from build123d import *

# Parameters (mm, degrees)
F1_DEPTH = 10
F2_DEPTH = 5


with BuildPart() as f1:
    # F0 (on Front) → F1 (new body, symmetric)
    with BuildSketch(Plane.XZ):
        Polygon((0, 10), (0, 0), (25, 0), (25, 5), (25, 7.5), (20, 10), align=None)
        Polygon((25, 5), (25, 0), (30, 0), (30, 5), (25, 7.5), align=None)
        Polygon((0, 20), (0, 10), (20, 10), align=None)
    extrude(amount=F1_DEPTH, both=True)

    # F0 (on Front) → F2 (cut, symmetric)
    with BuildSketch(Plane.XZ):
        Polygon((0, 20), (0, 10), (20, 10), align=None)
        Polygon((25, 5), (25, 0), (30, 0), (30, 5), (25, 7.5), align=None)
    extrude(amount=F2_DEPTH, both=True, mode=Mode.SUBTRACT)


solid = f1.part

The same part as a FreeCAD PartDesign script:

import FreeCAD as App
import Part
import Sketcher

V = App.Vector
Q = App.Units.Quantity

doc = App.newDocument("Part")
body = doc.addObject("PartDesign::Body", "Body")

sketch1 = body.newObject("Sketcher::SketchObject", "Sketch")
sketch1.AttachmentSupport = (doc.getObject("XZ_Plane"), [""])
sketch1.MapMode = "FlatFace"
sketch1.addGeometry(Part.LineSegment(V(0, 0, 0), V(30, 0, 0)), False)
sketch1.addGeometry(Part.LineSegment(V(30, 0, 0), V(30, 5, 0)), False)
sketch1.addGeometry(Part.LineSegment(V(30, 5, 0), V(0, 20, 0)), False)
sketch1.addGeometry(Part.LineSegment(V(0, 20, 0), V(0, 0, 0)), False)
sketch1.addConstraint(Sketcher.Constraint("Coincident", 0, 2, 1, 1))
sketch1.addConstraint(Sketcher.Constraint("Coincident", 1, 2, 2, 1))
sketch1.addConstraint(Sketcher.Constraint("Coincident", 2, 2, 3, 1))
sketch1.addConstraint(Sketcher.Constraint("Coincident", 3, 2, 0, 1))
sketch1.addConstraint(Sketcher.Constraint("Horizontal", 0))
sketch1.addConstraint(Sketcher.Constraint("Vertical", 1))
sketch1.addConstraint(Sketcher.Constraint("Vertical", 3))
sketch1.addConstraint(Sketcher.Constraint("Coincident", 3, 2, -1, 1))
sketch1.addConstraint(Sketcher.Constraint("DistanceX", 0, 1, 0, 2, Q("30 mm")))
sketch1.addConstraint(Sketcher.Constraint("DistanceY", 1, 1, 1, 2, Q("5 mm")))
sketch1.addConstraint(Sketcher.Constraint("DistanceY", 3, 2, 3, 1, Q("20 mm")))
pad1 = body.newObject("PartDesign::Pad", "Pad")
pad1.Profile = sketch1
pad1.Length = 20
pad1.Midplane = True

sketch2 = body.newObject("Sketcher::SketchObject", "Sketch001")
sketch2.AttachmentSupport = (doc.getObject("XZ_Plane"), [""])
sketch2.MapMode = "FlatFace"
sketch2.addGeometry(Part.LineSegment(V(0, 20, 0), V(0, 10, 0)), False)
sketch2.addGeometry(Part.LineSegment(V(0, 10, 0), V(20, 10, 0)), False)
sketch2.addGeometry(Part.LineSegment(V(20, 10, 0), V(0, 20, 0)), False)
sketch2.addGeometry(Part.LineSegment(V(25, 0, 0), V(30, 0, 0)), False)
sketch2.addGeometry(Part.LineSegment(V(30, 0, 0), V(30, 5, 0)), False)
sketch2.addGeometry(Part.LineSegment(V(30, 5, 0), V(25, 8, 0)), False)
sketch2.addGeometry(Part.LineSegment(V(25, 8, 0), V(25, 0, 0)), False)
sketch2.addConstraint(Sketcher.Constraint("Coincident", 0, 2, 1, 1))
sketch2.addConstraint(Sketcher.Constraint("Coincident", 1, 2, 2, 1))
sketch2.addConstraint(Sketcher.Constraint("Coincident", 2, 2, 0, 1))
sketch2.addConstraint(Sketcher.Constraint("Coincident", 3, 2, 4, 1))
sketch2.addConstraint(Sketcher.Constraint("Coincident", 4, 2, 5, 1))
sketch2.addConstraint(Sketcher.Constraint("Coincident", 5, 2, 6, 1))
sketch2.addConstraint(Sketcher.Constraint("Coincident", 6, 2, 3, 1))
sketch2.addConstraint(Sketcher.Constraint("Vertical", 0))
sketch2.addConstraint(Sketcher.Constraint("Horizontal", 1))
sketch2.addConstraint(Sketcher.Constraint("Horizontal", 3))
sketch2.addConstraint(Sketcher.Constraint("Vertical", 4))
sketch2.addConstraint(Sketcher.Constraint("Vertical", 6))
sketch2.addConstraint(Sketcher.Constraint("PointOnObject", 0, 2, -2))
sketch2.addConstraint(Sketcher.Constraint("PointOnObject", 3, 2, -1))
sketch2.addConstraint(Sketcher.Constraint("Parallel", 2, 5))
sketch2.addConstraint(Sketcher.Constraint("Equal", 3, 4))
sketch2.addConstraint(Sketcher.Constraint("DistanceX", 1, 1, 1, 2, Q("20 mm")))
sketch2.addConstraint(Sketcher.Constraint("DistanceX", 3, 1, 3, 2, Q("5 mm")))
sketch2.addConstraint(Sketcher.Constraint("DistanceY", 0, 2, 0, 1, Q("10 mm")))
sketch2.addConstraint(Sketcher.Constraint("DistanceY", -1, 1, 0, 2, Q("10 mm")))
sketch2.addConstraint(Sketcher.Constraint("DistanceX", -1, 1, 3, 2, Q("30 mm")))
pocket1 = body.newObject("PartDesign::Pocket", "Pocket")
pocket1.Profile = sketch2
pocket1.Length = 10
pocket1.Midplane = True

doc.recompute()
